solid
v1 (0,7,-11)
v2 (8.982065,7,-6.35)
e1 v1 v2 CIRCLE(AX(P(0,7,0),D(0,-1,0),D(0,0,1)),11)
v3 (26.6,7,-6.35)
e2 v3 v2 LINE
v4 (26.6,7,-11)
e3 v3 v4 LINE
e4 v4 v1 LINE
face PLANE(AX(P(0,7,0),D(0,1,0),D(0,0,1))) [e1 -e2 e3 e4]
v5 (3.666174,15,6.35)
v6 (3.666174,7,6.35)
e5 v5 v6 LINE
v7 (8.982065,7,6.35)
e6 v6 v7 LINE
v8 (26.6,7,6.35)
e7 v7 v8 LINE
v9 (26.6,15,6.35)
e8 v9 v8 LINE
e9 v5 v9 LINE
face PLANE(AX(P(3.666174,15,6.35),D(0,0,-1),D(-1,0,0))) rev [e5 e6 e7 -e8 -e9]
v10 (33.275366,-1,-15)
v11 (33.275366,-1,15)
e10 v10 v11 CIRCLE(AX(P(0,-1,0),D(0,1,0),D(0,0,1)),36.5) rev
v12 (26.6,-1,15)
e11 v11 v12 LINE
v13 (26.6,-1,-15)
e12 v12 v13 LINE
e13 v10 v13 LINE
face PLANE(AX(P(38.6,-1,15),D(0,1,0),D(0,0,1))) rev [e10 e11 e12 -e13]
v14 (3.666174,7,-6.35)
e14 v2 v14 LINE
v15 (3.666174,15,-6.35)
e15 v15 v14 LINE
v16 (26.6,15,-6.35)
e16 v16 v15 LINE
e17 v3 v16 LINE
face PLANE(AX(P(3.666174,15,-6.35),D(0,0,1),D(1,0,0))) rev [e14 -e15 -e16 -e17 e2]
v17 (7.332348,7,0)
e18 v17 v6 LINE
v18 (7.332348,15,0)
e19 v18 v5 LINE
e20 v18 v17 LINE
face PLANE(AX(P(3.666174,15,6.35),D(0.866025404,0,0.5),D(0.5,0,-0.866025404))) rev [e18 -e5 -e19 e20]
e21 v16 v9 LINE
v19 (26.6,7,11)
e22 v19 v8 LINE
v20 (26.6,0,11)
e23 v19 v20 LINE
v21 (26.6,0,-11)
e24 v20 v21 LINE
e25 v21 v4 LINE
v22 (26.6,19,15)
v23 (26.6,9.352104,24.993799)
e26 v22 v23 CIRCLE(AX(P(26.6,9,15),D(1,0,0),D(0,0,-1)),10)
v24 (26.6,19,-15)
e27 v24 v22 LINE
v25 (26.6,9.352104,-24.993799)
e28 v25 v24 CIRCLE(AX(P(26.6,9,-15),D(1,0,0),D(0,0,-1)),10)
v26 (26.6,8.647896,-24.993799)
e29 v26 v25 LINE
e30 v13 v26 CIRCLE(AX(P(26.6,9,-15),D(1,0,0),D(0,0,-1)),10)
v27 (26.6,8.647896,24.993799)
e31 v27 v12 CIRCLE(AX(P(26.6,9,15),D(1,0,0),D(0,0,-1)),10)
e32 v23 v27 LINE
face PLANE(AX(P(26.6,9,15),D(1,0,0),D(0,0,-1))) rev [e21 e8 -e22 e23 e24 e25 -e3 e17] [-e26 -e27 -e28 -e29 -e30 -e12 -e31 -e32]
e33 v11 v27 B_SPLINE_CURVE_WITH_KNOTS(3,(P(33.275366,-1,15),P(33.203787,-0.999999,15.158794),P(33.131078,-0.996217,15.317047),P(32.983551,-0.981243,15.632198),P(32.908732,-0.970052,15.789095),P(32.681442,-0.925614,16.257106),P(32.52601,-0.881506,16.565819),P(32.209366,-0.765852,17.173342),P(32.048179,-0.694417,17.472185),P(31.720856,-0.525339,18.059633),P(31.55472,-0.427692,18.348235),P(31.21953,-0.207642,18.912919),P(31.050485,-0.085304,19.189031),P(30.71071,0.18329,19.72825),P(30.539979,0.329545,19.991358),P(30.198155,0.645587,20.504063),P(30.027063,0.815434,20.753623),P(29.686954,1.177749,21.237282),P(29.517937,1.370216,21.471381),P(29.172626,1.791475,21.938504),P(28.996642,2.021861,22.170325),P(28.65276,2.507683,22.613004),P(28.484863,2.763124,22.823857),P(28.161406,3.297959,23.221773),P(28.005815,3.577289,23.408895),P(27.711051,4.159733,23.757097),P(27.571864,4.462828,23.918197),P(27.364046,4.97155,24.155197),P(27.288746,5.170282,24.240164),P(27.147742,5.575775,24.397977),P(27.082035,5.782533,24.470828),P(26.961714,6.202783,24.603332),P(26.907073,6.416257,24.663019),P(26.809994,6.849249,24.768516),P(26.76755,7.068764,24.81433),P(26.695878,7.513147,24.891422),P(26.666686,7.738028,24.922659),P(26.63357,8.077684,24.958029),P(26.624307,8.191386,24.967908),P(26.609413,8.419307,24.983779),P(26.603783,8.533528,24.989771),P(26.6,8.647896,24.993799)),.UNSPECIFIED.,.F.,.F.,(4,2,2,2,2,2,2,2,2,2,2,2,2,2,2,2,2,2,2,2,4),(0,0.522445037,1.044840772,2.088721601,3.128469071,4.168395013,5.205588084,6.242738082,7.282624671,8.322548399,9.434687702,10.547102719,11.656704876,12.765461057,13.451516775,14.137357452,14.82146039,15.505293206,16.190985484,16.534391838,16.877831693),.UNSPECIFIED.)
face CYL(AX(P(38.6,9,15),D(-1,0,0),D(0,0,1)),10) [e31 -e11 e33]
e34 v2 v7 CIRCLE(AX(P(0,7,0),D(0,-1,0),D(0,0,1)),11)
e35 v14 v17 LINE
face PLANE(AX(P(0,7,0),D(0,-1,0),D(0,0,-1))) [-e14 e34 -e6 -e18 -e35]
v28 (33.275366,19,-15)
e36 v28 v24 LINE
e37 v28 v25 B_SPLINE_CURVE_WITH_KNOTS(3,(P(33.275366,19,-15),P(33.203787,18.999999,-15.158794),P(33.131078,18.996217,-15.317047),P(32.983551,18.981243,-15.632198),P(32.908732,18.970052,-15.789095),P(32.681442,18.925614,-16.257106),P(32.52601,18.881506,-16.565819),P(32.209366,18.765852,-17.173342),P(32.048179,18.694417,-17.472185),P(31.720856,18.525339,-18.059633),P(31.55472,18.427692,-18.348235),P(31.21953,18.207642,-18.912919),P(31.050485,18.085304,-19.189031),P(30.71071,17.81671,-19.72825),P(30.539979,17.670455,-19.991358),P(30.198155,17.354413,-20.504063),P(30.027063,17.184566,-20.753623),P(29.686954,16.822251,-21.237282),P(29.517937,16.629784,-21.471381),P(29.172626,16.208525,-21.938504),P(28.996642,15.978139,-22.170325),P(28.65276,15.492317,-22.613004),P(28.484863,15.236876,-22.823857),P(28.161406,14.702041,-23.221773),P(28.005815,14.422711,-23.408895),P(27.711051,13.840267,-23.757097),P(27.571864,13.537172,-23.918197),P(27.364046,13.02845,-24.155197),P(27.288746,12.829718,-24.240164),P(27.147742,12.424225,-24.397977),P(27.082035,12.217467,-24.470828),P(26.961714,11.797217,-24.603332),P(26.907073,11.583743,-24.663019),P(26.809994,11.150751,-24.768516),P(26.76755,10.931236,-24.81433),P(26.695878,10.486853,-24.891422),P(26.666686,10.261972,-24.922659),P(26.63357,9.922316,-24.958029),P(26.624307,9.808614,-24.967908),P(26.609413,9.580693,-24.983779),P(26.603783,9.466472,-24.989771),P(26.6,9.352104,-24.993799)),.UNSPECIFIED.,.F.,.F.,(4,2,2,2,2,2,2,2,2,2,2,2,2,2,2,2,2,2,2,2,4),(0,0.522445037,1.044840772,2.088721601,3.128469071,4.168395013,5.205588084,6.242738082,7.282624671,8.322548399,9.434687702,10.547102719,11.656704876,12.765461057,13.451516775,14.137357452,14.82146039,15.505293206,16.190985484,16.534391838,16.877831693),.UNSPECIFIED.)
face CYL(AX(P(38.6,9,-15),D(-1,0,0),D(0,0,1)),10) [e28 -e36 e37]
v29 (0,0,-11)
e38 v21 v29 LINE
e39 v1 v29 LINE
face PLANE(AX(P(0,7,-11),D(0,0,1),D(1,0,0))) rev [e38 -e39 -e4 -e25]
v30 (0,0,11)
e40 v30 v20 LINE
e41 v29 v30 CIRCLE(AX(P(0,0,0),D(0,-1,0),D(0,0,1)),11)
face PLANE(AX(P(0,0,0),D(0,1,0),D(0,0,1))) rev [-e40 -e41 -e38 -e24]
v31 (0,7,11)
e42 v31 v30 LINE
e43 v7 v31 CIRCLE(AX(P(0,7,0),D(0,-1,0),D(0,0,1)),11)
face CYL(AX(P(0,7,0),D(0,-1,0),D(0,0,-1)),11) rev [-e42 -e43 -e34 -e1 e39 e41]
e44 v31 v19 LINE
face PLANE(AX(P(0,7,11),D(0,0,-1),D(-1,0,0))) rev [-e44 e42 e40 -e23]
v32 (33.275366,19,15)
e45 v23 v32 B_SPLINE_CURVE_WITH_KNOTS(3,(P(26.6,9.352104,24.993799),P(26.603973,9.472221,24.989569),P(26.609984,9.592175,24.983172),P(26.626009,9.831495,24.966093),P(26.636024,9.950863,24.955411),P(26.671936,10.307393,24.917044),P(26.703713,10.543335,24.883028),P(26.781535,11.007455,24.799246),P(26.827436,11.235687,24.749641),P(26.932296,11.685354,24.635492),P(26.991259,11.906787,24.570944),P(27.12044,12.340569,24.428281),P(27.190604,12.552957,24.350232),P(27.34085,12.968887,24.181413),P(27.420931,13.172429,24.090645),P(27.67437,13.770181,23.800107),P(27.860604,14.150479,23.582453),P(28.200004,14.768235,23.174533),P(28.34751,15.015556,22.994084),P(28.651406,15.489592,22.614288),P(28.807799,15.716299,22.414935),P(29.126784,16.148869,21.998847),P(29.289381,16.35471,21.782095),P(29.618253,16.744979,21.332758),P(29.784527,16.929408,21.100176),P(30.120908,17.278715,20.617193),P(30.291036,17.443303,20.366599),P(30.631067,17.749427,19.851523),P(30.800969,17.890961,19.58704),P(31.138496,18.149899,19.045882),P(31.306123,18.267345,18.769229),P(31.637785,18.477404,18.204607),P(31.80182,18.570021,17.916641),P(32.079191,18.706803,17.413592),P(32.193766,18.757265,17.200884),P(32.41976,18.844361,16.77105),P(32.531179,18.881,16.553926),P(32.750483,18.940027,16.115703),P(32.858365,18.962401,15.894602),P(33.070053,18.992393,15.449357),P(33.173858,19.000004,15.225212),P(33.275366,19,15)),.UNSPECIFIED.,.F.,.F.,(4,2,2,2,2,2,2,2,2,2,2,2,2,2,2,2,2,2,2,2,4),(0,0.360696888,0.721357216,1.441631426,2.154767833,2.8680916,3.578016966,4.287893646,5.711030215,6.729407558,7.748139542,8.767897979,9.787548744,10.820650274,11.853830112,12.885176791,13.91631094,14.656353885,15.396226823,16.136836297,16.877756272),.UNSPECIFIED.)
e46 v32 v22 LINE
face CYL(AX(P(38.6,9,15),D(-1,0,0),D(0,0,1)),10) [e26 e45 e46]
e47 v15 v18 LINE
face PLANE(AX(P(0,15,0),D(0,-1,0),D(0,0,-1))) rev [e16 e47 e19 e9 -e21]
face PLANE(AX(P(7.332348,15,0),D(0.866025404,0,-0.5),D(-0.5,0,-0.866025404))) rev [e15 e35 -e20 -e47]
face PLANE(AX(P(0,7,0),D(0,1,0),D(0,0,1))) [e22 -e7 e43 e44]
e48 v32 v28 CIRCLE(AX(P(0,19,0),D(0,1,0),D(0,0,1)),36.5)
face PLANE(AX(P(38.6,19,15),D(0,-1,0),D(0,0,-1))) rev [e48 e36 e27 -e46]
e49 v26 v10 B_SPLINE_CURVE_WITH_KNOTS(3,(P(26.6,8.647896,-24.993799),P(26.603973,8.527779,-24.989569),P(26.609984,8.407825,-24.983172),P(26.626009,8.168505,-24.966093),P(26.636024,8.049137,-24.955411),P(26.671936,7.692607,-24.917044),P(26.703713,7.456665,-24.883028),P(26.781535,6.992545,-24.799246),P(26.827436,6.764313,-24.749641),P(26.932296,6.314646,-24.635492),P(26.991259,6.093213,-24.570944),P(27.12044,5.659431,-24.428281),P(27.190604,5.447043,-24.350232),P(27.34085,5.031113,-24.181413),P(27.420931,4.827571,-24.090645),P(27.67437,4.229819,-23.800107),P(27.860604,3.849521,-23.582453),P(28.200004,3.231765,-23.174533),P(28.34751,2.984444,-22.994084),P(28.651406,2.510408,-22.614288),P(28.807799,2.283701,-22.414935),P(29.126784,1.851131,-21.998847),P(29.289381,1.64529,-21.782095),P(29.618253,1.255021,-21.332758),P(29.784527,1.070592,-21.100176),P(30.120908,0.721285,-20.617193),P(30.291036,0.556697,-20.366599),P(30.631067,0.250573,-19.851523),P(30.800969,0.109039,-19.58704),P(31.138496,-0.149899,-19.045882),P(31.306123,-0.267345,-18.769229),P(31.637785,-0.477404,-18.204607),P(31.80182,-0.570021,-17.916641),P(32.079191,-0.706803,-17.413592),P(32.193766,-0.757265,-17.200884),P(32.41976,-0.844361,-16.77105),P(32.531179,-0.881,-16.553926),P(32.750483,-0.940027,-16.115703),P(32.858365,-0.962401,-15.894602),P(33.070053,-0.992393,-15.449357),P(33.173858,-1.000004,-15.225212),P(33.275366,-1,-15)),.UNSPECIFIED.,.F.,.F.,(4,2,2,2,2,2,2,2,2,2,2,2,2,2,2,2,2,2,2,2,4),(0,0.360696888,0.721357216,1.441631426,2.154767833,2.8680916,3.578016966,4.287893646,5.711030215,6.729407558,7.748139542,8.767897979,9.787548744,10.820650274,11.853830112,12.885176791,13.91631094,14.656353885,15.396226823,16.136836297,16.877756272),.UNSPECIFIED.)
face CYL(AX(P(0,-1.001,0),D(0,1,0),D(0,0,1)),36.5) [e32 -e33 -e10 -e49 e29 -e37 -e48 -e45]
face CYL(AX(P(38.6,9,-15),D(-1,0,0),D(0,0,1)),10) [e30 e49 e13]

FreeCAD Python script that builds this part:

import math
import FreeCAD as App
import Part
import Sketcher

V = App.Vector
Q = App.Units.Quantity

doc = App.newDocument("Part")
body = doc.addObject("PartDesign::Body", "Body")

# Sketch on XZ plane
sketch1 = body.newObject("Sketcher::SketchObject", "Sketch")
sketch1.AttachmentSupport = (doc.getObject("XZ_Plane"), [""])
sketch1.MapMode = "FlatFace"
sketch1.addGeometry([
    Part.LineSegment(V(35, -11, 0), V(0, -11, 0)),
    Part.ArcOfCircle(Part.Circle(V(0, 0, 0), V(0, 0, 1), 11), math.radians(-90), math.radians(90)),
    Part.LineSegment(V(0, 11, 0), V(35, 11, 0)),
    Part.ArcOfCircle(Part.Circle(V(0, 0, 0), V(0, 0, 1), 37), math.radians(-18), math.radians(18)),
], False)
sketch1.addConstraint([
    Sketcher.Constraint("Tangent", 0, 2, 1, 1),
    Sketcher.Constraint("Tangent", 1, 2, 2, 1),
    Sketcher.Constraint("Coincident", 2, 2, 3, 2),
    Sketcher.Constraint("Coincident", 3, 1, 0, 1),
    Sketcher.Constraint("Horizontal", 0),
    Sketcher.Constraint("Horizontal", 2),
    Sketcher.Constraint("Coincident", 1, 3, -1, 1),
    Sketcher.Constraint("Coincident", 3, 3, -1, 1),
    Sketcher.Constraint("Radius", 1, Q("11 mm")),
    Sketcher.Constraint("Radius", 3, Q("36.5 mm")),
])
pad1 = body.newObject("PartDesign::Pad", "Pad")
pad1.Profile = sketch1
pad1.Length = 7
pad1.Reversed = True

# Sketch on XZ plane
sketch2 = body.newObject("Sketcher::SketchObject", "Sketch001")
sketch2.AttachmentSupport = (doc.getObject("XZ_Plane"), [""])
sketch2.MapMode = "FlatFace"
sketch2.AttachmentOffset = App.Placement(V(0, 0, -7), App.Rotation())
sketch2.addGeometry([
    Part.LineSegment(V(36, -6, 0), V(4, -6, 0)),  # 0
    Part.LineSegment(V(4, -6, 0), V(7, 0, 0)),  # 1
    Part.LineSegment(V(7, 0, 0), V(4, 6, 0)),  # 2
    Part.LineSegment(V(4, 6, 0), V(36, 6, 0)),  # 3
    Part.ArcOfCircle(Part.Circle(V(0, 0, 0), V(0, 0, 1), 36), math.radians(-10), math.radians(10)),  # 4
], False)
sketch2.addConstraint([
    Sketcher.Constraint("Coincident", 0, 2, 1, 1),
    Sketcher.Constraint("Coincident", 1, 2, 2, 1),
    Sketcher.Constraint("Coincident", 2, 2, 3, 1),
    Sketcher.Constraint("Coincident", 3, 2, 4, 2),
    Sketcher.Constraint("Coincident", 4, 1, 0, 1),
    Sketcher.Constraint("Horizontal", 0),
    Sketcher.Constraint("Horizontal", 3),
    Sketcher.Constraint("Coincident", 4, 3, -1, 1),
    Sketcher.Constraint("Symmetric", 0, 2, 2, 2, -1),
    Sketcher.Constraint("PointOnObject", 1, 2, -1),
    Sketcher.Constraint("Radius", 4, Q("36.5 mm")),
    Sketcher.Constraint("Angle", 1, Q("60 deg")),
    Sketcher.Constraint("DistanceY", 0, 2, 2, 2, Q("12.7 mm")),
    Sketcher.Constraint("DistanceX", 0, 2, 0, 1, Q("32.277219 mm")),
])
pad2 = body.newObject("PartDesign::Pad", "Pad001")
pad2.Profile = sketch2
pad2.Length = 8
pad2.Reversed = True

# Sketch on YZ plane
sketch3 = body.newObject("Sketcher::SketchObject", "Sketch002")
sketch3.AttachmentSupport = (doc.getObject("YZ_Plane"), [""])
sketch3.MapMode = "FlatFace"
sketch3.AttachmentOffset = App.Placement(V(0, 0, 26.6), App.Rotation())
sketch3.addGeometry([
    Part.LineSegment(V(-1, 15, 0), V(-1, -15, 0)),
    Part.ArcOfCircle(Part.Circle(V(9, -15, 0), V(0, 0, 1), 10), math.radians(180), math.radians(360)),
    Part.LineSegment(V(19, -15, 0), V(19, 15, 0)),
    Part.ArcOfCircle(Part.Circle(V(9, 15, 0), V(0, 0, 1), 10), math.radians(0), math.radians(180)),
], False)
sketch3.addConstraint([
    Sketcher.Constraint("Tangent", 0, 2, 1, 1),
    Sketcher.Constraint("Tangent", 1, 2, 2, 1),
    Sketcher.Constraint("Tangent", 2, 2, 3, 1),
    Sketcher.Constraint("Tangent", 3, 2, 0, 1),
    Sketcher.Constraint("Vertical", 0),
    Sketcher.Constraint("Vertical", 2),
    Sketcher.Constraint("Radius", 1, Q("10 mm")),
    Sketcher.Constraint("DistanceY", 0, 2, 0, 1, Q("30 mm")),
    Sketcher.Constraint("DistanceX", -1, 1, 1, 3, Q("9 mm")),
    Sketcher.Constraint("DistanceY", 1, 3, -1, 1, Q("15 mm")),
])
pad3 = body.newObject("PartDesign::Pad", "Pad002")
pad3.Profile = sketch3
pad3.Length = 12

# Sketch on XZ plane
sketch4 = body.newObject("Sketcher::SketchObject", "Sketch003")
sketch4.AttachmentSupport = (doc.getObject("XZ_Plane"), [""])
sketch4.MapMode = "FlatFace"
sketch4.AttachmentOffset = App.Placement(V(0, 0, -19), App.Rotation())
sketch4.addGeometry([
    Part.Circle(V(0, 0, 0), V(0, 0, 1), 50),
    Part.Circle(V(0, 0, 0), V(0, 0, 1), 36),
], False)
sketch4.addConstraint([
    Sketcher.Constraint("Coincident", 0, 3, -1, 1),
    Sketcher.Constraint("Coincident", 1, 3, -1, 1),
    Sketcher.Constraint("Diameter", 0, Q("100 mm")),
    Sketcher.Constraint("Diameter", 1, Q("73 mm")),
])
pocket1 = body.newObject("PartDesign::Pocket", "Pocket")
pocket1.Profile = sketch4
pocket1.Length = 20
pocket1.Reversed = True

doc.recompute()
